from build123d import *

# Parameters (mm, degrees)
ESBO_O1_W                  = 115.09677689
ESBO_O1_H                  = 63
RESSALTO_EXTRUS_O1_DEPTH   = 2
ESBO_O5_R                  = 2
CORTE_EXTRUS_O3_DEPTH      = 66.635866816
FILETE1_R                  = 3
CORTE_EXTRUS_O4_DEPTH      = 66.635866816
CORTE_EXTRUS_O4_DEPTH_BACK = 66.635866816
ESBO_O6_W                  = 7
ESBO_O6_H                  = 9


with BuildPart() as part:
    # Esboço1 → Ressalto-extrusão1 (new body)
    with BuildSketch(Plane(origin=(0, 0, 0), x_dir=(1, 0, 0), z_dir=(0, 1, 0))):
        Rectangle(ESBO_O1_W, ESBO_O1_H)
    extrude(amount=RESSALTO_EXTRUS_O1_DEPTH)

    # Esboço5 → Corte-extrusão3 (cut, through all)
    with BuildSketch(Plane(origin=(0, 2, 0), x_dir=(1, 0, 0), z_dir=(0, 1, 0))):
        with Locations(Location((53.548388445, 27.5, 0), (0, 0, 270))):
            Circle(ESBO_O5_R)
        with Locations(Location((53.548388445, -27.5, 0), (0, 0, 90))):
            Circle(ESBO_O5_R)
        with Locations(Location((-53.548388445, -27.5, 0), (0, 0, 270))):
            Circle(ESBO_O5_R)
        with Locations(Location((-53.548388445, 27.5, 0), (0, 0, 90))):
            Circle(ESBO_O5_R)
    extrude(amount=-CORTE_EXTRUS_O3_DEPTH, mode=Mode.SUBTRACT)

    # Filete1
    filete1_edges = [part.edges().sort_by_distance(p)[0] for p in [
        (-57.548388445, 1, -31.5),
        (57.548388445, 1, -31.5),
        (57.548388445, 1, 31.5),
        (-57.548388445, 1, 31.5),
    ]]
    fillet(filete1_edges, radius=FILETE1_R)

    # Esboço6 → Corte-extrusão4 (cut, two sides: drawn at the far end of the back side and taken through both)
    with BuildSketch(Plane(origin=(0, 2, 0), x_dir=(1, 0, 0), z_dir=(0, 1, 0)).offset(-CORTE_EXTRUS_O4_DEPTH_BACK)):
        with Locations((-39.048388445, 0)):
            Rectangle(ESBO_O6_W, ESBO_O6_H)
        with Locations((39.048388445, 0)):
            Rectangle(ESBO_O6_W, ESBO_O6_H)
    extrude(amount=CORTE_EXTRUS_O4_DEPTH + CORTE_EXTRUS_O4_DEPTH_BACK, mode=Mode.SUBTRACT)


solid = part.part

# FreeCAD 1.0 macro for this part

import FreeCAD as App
import Part
import Sketcher
from FreeCAD import Vector
Q = App.Units.Quantity


def edges_at(feature, points):
    """Names of the edges that pass closest to the given points."""
    edges = feature.Shape.Edges
    near = lambda p: min(range(len(edges)), key=lambda i: edges[i].distToShape(Part.Vertex(*p))[0])
    return sorted({f"Edge{near(p) + 1}" for p in points})

doc = App.newDocument("Part")
params = doc.addObject("Spreadsheet::Sheet", "Params")
for row, (alias, value) in enumerate([
    ("sketch1_height", "63 mm"),
    ("pad1_length", "2 mm"),
    ("sketch2_diameter", "4 mm"),
    ("fillet_radius", "3 mm"),
    ("sketch3_width", "7 mm"),
    ("sketch3_height", "9 mm"),
], start=1):
    params.set(f"A{row}", alias)
    params.set(f"B{row}", "=" + value)
    params.setAlias(f"B{row}", alias)

body = doc.addObject("PartDesign::Body", "Body")

# Sketch on XZ plane
sketch1 = body.newObject("Sketcher::SketchObject", "Sketch")
sketch1.AttachmentSupport = (doc.getObject("XZ_Plane"), [""])
sketch1.MapMode = "FlatFace"
sketch1.addGeometry([
    Part.LineSegment(Vector(-57.548388, -31.5, 0), Vector(-57.548388, 31.5, 0)),
    Part.LineSegment(Vector(-57.548388, 31.5, 0), Vector(57.548388, 31.5, 0)),
    Part.LineSegment(Vector(57.548388, 31.5, 0), Vector(57.548388, -31.5, 0)),
    Part.LineSegment(Vector(57.548388, -31.5, 0), Vector(-57.548388, -31.5, 0)),
], False)
sketch1.addConstraint([
    Sketcher.Constraint("Coincident", 0, 2, 1, 1),
    Sketcher.Constraint("Coincident", 1, 2, 2, 1),
    Sketcher.Constraint("Coincident", 2, 2, 3, 1),
    Sketcher.Constraint("Coincident", 3, 2, 0, 1),
    Sketcher.Constraint("Vertical", 0),
    Sketcher.Constraint("Horizontal", 1),
    Sketcher.Constraint("Vertical", 2),
    Sketcher.Constraint("Horizontal", 3),
    Sketcher.Constraint("Symmetric", 0, 2, 2, 2, -1, 1),
    Sketcher.Constraint("DistanceY", 0, 1, 0, 2, Q("63 mm")),
    Sketcher.Constraint("DistanceX", 1, 1, 1, 2, Q("115.096777 mm")),
])
sketch1.setExpression("Constraints[9]", "Params.sketch1_height")
pad1 = body.newObject("PartDesign::Pad", "Pad")
pad1.Profile = sketch1
pad1.setExpression("Length", "Params.pad1_length")
pad1.Reversed = True

# Sketch on XZ plane
sketch2 = body.newObject("Sketcher::SketchObject", "Sketch001")
sketch2.AttachmentSupport = (doc.getObject("XZ_Plane"), [""])
sketch2.MapMode = "FlatFace"
sketch2.AttachmentOffset = App.Placement(Vector(0, 0, -2), App.Rotation())
sketch2.addGeometry([
    Part.Circle(Vector(53.548388, -27.5, 0), Vector(0, 0, 1), 2),
    Part.Circle(Vector(53.548388, 27.5, 0), Vector(0, 0, 1), 2),
    Part.Circle(Vector(-53.548388, 27.5, 0), Vector(0, 0, 1), 2),
    Part.Circle(Vector(-53.548388, -27.5, 0), Vector(0, 0, 1), 2),
], False)
sketch2.addConstraint([
    Sketcher.Constraint("Equal", 0, 1),
    Sketcher.Constraint("Equal", 1, 2),
    Sketcher.Constraint("Equal", 2, 3),
    Sketcher.Constraint("Symmetric", 0, 3, 2, 3, -1, 1),
    Sketcher.Constraint("Symmetric", 1, 3, 3, 3, -1, 1),
    Sketcher.Constraint("Symmetric", 1, 3, 2, 3, -2),
    Sketcher.Constraint("Diameter", 0, Q("4 mm")),
    Sketcher.Constraint("DistanceY", 0, 3, 1, 3, Q("55 mm")),
    Sketcher.Constraint("DistanceX", -1, 1, 0, 3, Q("53.548388 mm")),
])
sketch2.setExpression("Constraints[6]", "Params.sketch2_diameter")
pocket1 = body.newObject("PartDesign::Pocket", "Pocket")
pocket1.Profile = sketch2
pocket1.Type = "ThroughAll"
pocket1.Reversed = True
doc.recompute()

fillet = body.newObject("PartDesign::Fillet", "Fillet")
fillet.Base = (pocket1, edges_at(pocket1, [
    (-57.548, 1, -31.5),
    (57.548, 1, -31.5),
    (57.548, 1, 31.5),
    (-57.548, 1, 31.5),
]))
fillet.setExpression("Radius", "Params.fillet_radius")

# Sketch on XZ plane
sketch3 = body.newObject("Sketcher::SketchObject", "Sketch002")
sketch3.AttachmentSupport = (doc.getObject("XZ_Plane"), [""])
sketch3.MapMode = "FlatFace"
sketch3.AttachmentOffset = App.Placement(Vector(0, 0, -2), App.Rotation())
sketch3.addGeometry([
    Part.LineSegment(Vector(-42.548388, -4.5, 0), Vector(-42.548388, 4.5, 0)),  # 0
    Part.LineSegment(Vector(-42.548388, 4.5, 0), Vector(-35.548388, 4.5, 0)),  # 1
    Part.LineSegment(Vector(-35.548388, 4.5, 0), Vector(-35.548388, -4.5, 0)),  # 2
    Part.LineSegment(Vector(-35.548388, -4.5, 0), Vector(-42.548388, -4.5, 0)),  # 3
    Part.LineSegment(Vector(35.548388, -4.5, 0), Vector(35.548388, 4.5, 0)),  # 4
    Part.LineSegment(Vector(35.548388, 4.5, 0), Vector(42.548388, 4.5, 0)),  # 5
    Part.LineSegment(Vector(42.548388, 4.5, 0), Vector(42.548388, -4.5, 0)),  # 6
    Part.LineSegment(Vector(42.548388, -4.5, 0), Vector(35.548388, -4.5, 0)),  # 7
], False)
sketch3.addConstraint([
    Sketcher.Constraint("Coincident", 0, 2, 1, 1),
    Sketcher.Constraint("Coincident", 1, 2, 2, 1),
    Sketcher.Constraint("Coincident", 2, 2, 3, 1),
    Sketcher.Constraint("Coincident", 3, 2, 0, 1),
    Sketcher.Constraint("Coincident", 4, 2, 5, 1),
    Sketcher.Constraint("Coincident", 5, 2, 6, 1),
    Sketcher.Constraint("Coincident", 6, 2, 7, 1),
    Sketcher.Constraint("Coincident", 7, 2, 4, 1),
    Sketcher.Constraint("Vertical", 0),
    Sketcher.Constraint("Horizontal", 1),
    Sketcher.Constraint("Vertical", 2),
    Sketcher.Constraint("Horizontal", 3),
    Sketcher.Constraint("Vertical", 4),
    Sketcher.Constraint("Horizontal", 5),
    Sketcher.Constraint("Vertical", 6),
    Sketcher.Constraint("Horizontal", 7),
    Sketcher.Constraint("Symmetric", 2, 2, 4, 2, -1, 1),
    Sketcher.Constraint("Symmetric", 0, 2, 6, 2, -1, 1),
    Sketcher.Constraint("Horizontal", 1, 2, 4, 2),
    Sketcher.Constraint("DistanceX", 1, 1, 1, 2, Q("7 mm")),
    Sketcher.Constraint("DistanceY", 0, 1, 0, 2, Q("9 mm")),
    Sketcher.Constraint("DistanceX", 0, 2, -1, 1, Q("42.548388 mm")),
])
sketch3.setExpression("Constraints[19]", "Params.sketch3_width")
sketch3.setExpression("Constraints[20]", "Params.sketch3_height")
pocket2 = body.newObject("PartDesign::Pocket", "Pocket001")
pocket2.Profile = sketch3
pocket2.Type = "ThroughAll"
pocket2.Midplane = True

doc.recompute()
